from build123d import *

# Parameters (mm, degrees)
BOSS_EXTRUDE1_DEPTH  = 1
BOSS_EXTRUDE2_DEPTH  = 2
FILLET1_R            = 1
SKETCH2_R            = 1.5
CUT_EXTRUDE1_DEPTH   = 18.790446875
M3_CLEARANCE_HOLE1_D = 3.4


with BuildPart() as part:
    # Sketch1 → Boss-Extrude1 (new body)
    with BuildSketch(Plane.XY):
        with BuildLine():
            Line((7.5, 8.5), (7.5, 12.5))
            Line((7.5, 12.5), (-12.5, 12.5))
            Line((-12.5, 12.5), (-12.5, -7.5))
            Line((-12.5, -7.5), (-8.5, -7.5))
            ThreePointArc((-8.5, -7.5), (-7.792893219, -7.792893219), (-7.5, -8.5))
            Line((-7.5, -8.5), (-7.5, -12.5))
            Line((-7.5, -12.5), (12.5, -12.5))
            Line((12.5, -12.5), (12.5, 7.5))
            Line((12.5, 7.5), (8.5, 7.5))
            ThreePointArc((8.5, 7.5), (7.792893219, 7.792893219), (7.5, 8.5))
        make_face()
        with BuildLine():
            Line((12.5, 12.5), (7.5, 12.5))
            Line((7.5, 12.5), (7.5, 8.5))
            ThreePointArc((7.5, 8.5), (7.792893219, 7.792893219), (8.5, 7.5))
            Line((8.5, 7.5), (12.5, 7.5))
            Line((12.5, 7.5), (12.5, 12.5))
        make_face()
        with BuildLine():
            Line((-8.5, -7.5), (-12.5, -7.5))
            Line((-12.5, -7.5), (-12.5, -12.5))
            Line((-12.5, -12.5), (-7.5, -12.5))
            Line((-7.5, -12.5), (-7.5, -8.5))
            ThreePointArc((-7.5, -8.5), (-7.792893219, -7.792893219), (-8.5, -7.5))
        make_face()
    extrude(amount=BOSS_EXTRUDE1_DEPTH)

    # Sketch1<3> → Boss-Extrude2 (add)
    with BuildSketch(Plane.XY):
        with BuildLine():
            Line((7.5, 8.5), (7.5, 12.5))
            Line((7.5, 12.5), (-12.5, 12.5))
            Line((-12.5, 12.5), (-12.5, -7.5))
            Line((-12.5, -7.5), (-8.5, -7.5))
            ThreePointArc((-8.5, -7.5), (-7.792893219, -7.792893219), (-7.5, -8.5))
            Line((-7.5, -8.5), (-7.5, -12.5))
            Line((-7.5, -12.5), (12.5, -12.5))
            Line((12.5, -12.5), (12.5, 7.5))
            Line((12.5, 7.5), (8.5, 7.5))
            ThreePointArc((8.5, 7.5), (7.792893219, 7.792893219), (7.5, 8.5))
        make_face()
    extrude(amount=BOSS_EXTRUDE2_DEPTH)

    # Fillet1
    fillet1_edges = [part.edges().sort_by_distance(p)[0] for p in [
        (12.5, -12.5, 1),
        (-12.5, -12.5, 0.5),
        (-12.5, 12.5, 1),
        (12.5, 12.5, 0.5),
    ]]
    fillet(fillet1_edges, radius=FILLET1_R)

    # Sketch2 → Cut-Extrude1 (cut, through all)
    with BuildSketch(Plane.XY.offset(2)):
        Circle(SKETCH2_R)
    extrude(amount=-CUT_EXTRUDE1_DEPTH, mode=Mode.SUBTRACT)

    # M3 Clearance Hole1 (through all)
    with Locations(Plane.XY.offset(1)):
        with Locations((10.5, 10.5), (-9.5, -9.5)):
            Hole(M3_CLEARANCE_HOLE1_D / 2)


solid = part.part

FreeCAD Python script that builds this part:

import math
import FreeCAD as App
import Part
import Sketcher
from FreeCAD import Vector
Q = App.Units.Quantity


def edges_at(feature, points):
    """Names of the edges that pass closest to the given points."""
    edges = feature.Shape.Edges
    near = lambda p: min(range(len(edges)), key=lambda i: edges[i].distToShape(Part.Vertex(*p))[0])
    return sorted({f"Edge{near(p) + 1}" for p in points})

doc = App.newDocument("Part")
body = doc.addObject("PartDesign::Body", "Body")

# Sketch on XY plane
sketch1 = doc.addObject("Sketcher::SketchObject", "Sketch")
body.addObject(sketch1)
sketch1.AttachmentSupport = (doc.XY_Plane, [""])
sketch1.MapMode = "FlatFace"
sketch1.addGeometry([
    Part.LineSegment(Vector(-12.5, 12.5, 0), Vector(-12.5, -12.5, 0)),
    Part.LineSegment(Vector(-12.5, -12.5, 0), Vector(12.5, -12.5, 0)),
    Part.LineSegment(Vector(12.5, -12.5, 0), Vector(12.5, 12.5, 0)),
    Part.LineSegment(Vector(12.5, 12.5, 0), Vector(-12.5, 12.5, 0)),
], False)
sketch1.addConstraint([
    Sketcher.Constraint("Coincident", 0, 2, 1, 1),
    Sketcher.Constraint("Coincident", 1, 2, 2, 1),
    Sketcher.Constraint("Coincident", 2, 2, 3, 1),
    Sketcher.Constraint("Coincident", 3, 2, 0, 1),
    Sketcher.Constraint("Vertical", 0),
    Sketcher.Constraint("Horizontal", 1),
    Sketcher.Constraint("Vertical", 2),
    Sketcher.Constraint("Horizontal", 3),
    Sketcher.Constraint("Symmetric", 0, 2, 2, 2, -1, 1),
    Sketcher.Constraint("Equal", 3, 0),
    Sketcher.Constraint("DistanceX", 1, 1, 1, 2, Q("25 mm")),
])
pad1 = doc.addObject("PartDesign::Pad", "Pad")
body.addObject(pad1)
pad1.Profile = sketch1
pad1.Length = 1

# Sketch on XY plane
sketch2 = doc.addObject("Sketcher::SketchObject", "Sketch001")
body.addObject(sketch2)
sketch2.AttachmentSupport = (doc.XY_Plane, [""])
sketch2.MapMode = "FlatFace"
sketch2.addGeometry([
    Part.LineSegment(Vector(7.5, 8.5, 0), Vector(7.5, 12.5, 0)),  # 0
    Part.LineSegment(Vector(7.5, 12.5, 0), Vector(-12.5, 12.5, 0)),  # 1
    Part.LineSegment(Vector(-12.5, 12.5, 0), Vector(-12.5, -7.5, 0)),  # 2
    Part.LineSegment(Vector(-12.5, -7.5, 0), Vector(-8.5, -7.5, 0)),  # 3
    Part.ArcOfCircle(Part.Circle(Vector(-8.5, -8.5, 0), Vector(0, 0, 1), 1), math.radians(0), math.radians(90)),  # 4
    Part.LineSegment(Vector(-7.5, -8.5, 0), Vector(-7.5, -12.5, 0)),  # 5
    Part.LineSegment(Vector(-7.5, -12.5, 0), Vector(12.5, -12.5, 0)),  # 6
    Part.LineSegment(Vector(12.5, -12.5, 0), Vector(12.5, 7.5, 0)),  # 7
    Part.LineSegment(Vector(12.5, 7.5, 0), Vector(8.5, 7.5, 0)),  # 8
    Part.ArcOfCircle(Part.Circle(Vector(8.5, 8.5, 0), Vector(0, 0, 1), 1), math.radians(-180), math.radians(-90)),  # 9
], False)
sketch2.addConstraint([
    Sketcher.Constraint("Coincident", 0, 2, 1, 1),
    Sketcher.Constraint("Coincident", 1, 2, 2, 1),
    Sketcher.Constraint("Coincident", 2, 2, 3, 1),
    Sketcher.Constraint("Tangent", 3, 2, 4, 2),
    Sketcher.Constraint("Tangent", 4, 1, 5, 1),
    Sketcher.Constraint("Coincident", 5, 2, 6, 1),
    Sketcher.Constraint("Coincident", 6, 2, 7, 1),
    Sketcher.Constraint("Coincident", 7, 2, 8, 1),
    Sketcher.Constraint("Tangent", 8, 2, 9, 2),
    Sketcher.Constraint("Tangent", 9, 1, 0, 1),
    Sketcher.Constraint("Vertical", 0),
    Sketcher.Constraint("Horizontal", 1),
    Sketcher.Constraint("Vertical", 2),
    Sketcher.Constraint("Horizontal", 3),
    Sketcher.Constraint("Vertical", 5),
    Sketcher.Constraint("Horizontal", 6),
    Sketcher.Constraint("Vertical", 7),
    Sketcher.Constraint("Horizontal", 8),
    Sketcher.Constraint("Equal", 4, 9),
    Sketcher.Constraint("Symmetric", 4, 3, 9, 3, -1, 1),
    Sketcher.Constraint("Symmetric", 1, 2, 6, 2, -1, 1),
    Sketcher.Constraint("Equal", 8, 0),
    Sketcher.Constraint("Equal", 6, 2),
    Sketcher.Constraint("Radius", 4, Q("1 mm")),
    Sketcher.Constraint("DistanceX", 1, 2, 1, 1, Q("20 mm")),
    Sketcher.Constraint("DistanceX", 3, 1, 3, 2, Q("4 mm")),
])
pad2 = doc.addObject("PartDesign::Pad", "Pad001")
body.addObject(pad2)
pad2.Profile = sketch2
pad2.Length = 2
doc.recompute()

fillet = doc.addObject("PartDesign::Fillet", "Fillet")
body.addObject(fillet)
fillet.Base = (pad2, edges_at(pad2, [
    (12.5, -12.5, 1),
    (-12.5, -12.5, 0.5),
    (-12.5, 12.5, 1),
    (12.5, 12.5, 0.5),
]))
fillet.Radius = 1

# Sketch on XY plane
sketch3 = doc.addObject("Sketcher::SketchObject", "Sketch002")
body.addObject(sketch3)
sketch3.AttachmentSupport = (doc.XY_Plane, [""])
sketch3.MapMode = "FlatFace"
sketch3.AttachmentOffset = App.Placement(Vector(0, 0, 2), App.Rotation())
sketch3.addGeometry(Part.Circle(Vector(0, 0, 0), Vector(0, 0, 1), 1.5), False)
sketch3.addConstraint([
    Sketcher.Constraint("Coincident", 0, 3, -1, 1),
    Sketcher.Constraint("Diameter", 0, Q("3 mm")),
])
pocket1 = doc.addObject("PartDesign::Pocket", "Pocket")
body.addObject(pocket1)
pocket1.Profile = sketch3
pocket1.Type = "ThroughAll"

# Sketch on XY plane
sketch4 = doc.addObject("Sketcher::SketchObject", "Sketch003")
body.addObject(sketch4)
sketch4.AttachmentSupport = (doc.XY_Plane, [""])
sketch4.MapMode = "FlatFace"
sketch4.AttachmentOffset = App.Placement(Vector(0, 0, 1), App.Rotation())
sketch4.addGeometry([
    Part.Circle(Vector(10.5, 10.5, 0), Vector(0, 0, 1), 1.7),
    Part.Circle(Vector(-9.5, -9.5, 0), Vector(0, 0, 1), 1.7),
], False)
sketch4.addConstraint([
    Sketcher.Constraint("Equal", 0, 1),
    Sketcher.Constraint("Diameter", 0, Q("3.4 mm")),
    Sketcher.Constraint("DistanceX", 1, 3, 0, 3, Q("20 mm")),
    Sketcher.Constraint("DistanceY", 1, 3, 0, 3, Q("20 mm")),
    Sketcher.Constraint("DistanceX", -1, 1, 0, 3, Q("10.5 mm")),
    Sketcher.Constraint("DistanceY", -1, 1, 0, 3, Q("10.5 mm")),
])
doc.recompute()
hole = doc.addObject("PartDesign::Hole", "Hole")
body.addObject(hole)
hole.Profile = sketch4
hole.ThreadType = "None"
hole.Diameter = 3.4
hole.DepthType = "ThroughAll"

doc.recompute()
